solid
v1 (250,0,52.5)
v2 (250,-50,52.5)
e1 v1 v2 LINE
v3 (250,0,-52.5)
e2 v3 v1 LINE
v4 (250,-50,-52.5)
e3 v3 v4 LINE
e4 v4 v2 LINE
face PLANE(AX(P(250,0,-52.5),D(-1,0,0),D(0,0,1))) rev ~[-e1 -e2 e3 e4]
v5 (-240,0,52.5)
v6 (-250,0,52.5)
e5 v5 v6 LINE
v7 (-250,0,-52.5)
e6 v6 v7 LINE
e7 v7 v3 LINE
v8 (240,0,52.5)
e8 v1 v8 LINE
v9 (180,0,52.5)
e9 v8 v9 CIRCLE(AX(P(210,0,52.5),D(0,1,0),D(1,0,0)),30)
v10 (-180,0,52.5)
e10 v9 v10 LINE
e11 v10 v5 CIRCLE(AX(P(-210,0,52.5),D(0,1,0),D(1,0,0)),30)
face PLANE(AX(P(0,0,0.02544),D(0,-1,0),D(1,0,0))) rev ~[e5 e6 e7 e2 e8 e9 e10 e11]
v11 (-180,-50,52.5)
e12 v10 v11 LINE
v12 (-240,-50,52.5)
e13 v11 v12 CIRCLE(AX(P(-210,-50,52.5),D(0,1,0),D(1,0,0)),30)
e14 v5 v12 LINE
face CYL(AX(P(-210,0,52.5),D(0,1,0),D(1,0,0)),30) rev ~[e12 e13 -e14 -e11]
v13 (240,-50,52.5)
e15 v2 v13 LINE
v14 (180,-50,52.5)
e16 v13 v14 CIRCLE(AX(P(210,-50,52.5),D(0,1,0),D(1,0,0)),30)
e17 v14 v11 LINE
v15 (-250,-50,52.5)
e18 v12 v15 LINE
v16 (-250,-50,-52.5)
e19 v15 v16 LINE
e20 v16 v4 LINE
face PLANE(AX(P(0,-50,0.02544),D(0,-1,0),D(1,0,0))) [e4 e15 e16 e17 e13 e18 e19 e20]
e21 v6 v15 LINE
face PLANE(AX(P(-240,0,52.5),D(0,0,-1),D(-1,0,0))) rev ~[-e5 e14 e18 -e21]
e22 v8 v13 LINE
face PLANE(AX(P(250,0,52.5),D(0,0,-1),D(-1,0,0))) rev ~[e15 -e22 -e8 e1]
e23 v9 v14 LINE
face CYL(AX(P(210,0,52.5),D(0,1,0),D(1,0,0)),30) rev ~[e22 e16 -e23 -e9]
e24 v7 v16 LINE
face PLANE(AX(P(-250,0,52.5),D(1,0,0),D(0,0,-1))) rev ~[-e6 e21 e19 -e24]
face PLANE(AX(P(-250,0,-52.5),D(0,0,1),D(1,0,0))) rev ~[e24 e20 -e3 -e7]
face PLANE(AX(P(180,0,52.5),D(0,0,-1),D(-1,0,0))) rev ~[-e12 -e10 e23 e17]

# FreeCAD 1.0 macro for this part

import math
import FreeCAD as App
import Part
import Sketcher
Q = App.Units.Quantity

doc = App.newDocument("Part")
body = doc.addObject("PartDesign::Body", "Body")

sketch1 = body.newObject("Sketcher::SketchObject", "Sketch")
sketch1.AttachmentSupport = (doc.getObject("XZ_Plane"), [""])
sketch1.MapMode = "FlatFace"
sketch1.addGeometry(Part.LineSegment(App.Vector(-240, 52, 0), App.Vector(-250, 52, 0)), False)
sketch1.addGeometry(Part.LineSegment(App.Vector(-250, 52, 0), App.Vector(-250, -52, 0)), False)
sketch1.addGeometry(Part.LineSegment(App.Vector(-250, -52, 0), App.Vector(250, -52, 0)), False)
sketch1.addGeometry(Part.LineSegment(App.Vector(250, -52, 0), App.Vector(250, 52, 0)), False)
sketch1.addGeometry(Part.LineSegment(App.Vector(250, 52, 0), App.Vector(240, 52, 0)), False)
sketch1.addGeometry(Part.ArcOfCircle(Part.Circle(App.Vector(210, 52, 0), App.Vector(0, 0, 1), 30), math.radians(180), math.radians(360)), False)
sketch1.addGeometry(Part.LineSegment(App.Vector(180, 52, 0), App.Vector(-180, 52, 0)), False)
sketch1.addGeometry(Part.ArcOfCircle(Part.Circle(App.Vector(-210, 52, 0), App.Vector(0, 0, 1), 30), math.radians(180), math.radians(360)), False)
sketch1.addConstraint(Sketcher.Constraint("Coincident", 0, 2, 1, 1))
sketch1.addConstraint(Sketcher.Constraint("Coincident", 1, 2, 2, 1))
sketch1.addConstraint(Sketcher.Constraint("Coincident", 2, 2, 3, 1))
sketch1.addConstraint(Sketcher.Constraint("Coincident", 3, 2, 4, 1))
sketch1.addConstraint(Sketcher.Constraint("Coincident", 4, 2, 5, 2))
sketch1.addConstraint(Sketcher.Constraint("Coincident", 5, 1, 6, 1))
sketch1.addConstraint(Sketcher.Constraint("Coincident", 6, 2, 7, 2))
sketch1.addConstraint(Sketcher.Constraint("Coincident", 7, 1, 0, 1))
sketch1.addConstraint(Sketcher.Constraint("Horizontal", 0))
sketch1.addConstraint(Sketcher.Constraint("Vertical", 1))
sketch1.addConstraint(Sketcher.Constraint("Horizontal", 2))
sketch1.addConstraint(Sketcher.Constraint("Vertical", 3))
sketch1.addConstraint(Sketcher.Constraint("Horizontal", 4))
sketch1.addConstraint(Sketcher.Constraint("Horizontal", 6))
sketch1.addConstraint(Sketcher.Constraint("Equal", 5, 7))
sketch1.addConstraint(Sketcher.Constraint("Symmetric", 0, 2, 2, 2, -1, 1))
sketch1.addConstraint(Sketcher.Constraint("Symmetric", 5, 3, 7, 3, -2))
sketch1.addConstraint(Sketcher.Constraint("Horizontal", 7, 3, 0, 2))
sketch1.addConstraint(Sketcher.Constraint("Horizontal", 0, 2, 3, 2))
sketch1.addConstraint(Sketcher.Constraint("Horizontal", 4, 2, 5, 1))
sketch1.addConstraint(Sketcher.Constraint("Radius", 5, Q("30 mm")))
sketch1.addConstraint(Sketcher.Constraint("DistanceX", 0, 2, 0, 1, Q("10 mm")))
sketch1.addConstraint(Sketcher.Constraint("DistanceX", 2, 1, 2, 2, Q("500 mm")))
sketch1.addConstraint(Sketcher.Constraint("DistanceY", 1, 2, 1, 1, Q("105 mm")))
pad1 = body.newObject("PartDesign::Pad", "Pad")
pad1.Profile = sketch1
pad1.Length = 50

doc.recompute()
